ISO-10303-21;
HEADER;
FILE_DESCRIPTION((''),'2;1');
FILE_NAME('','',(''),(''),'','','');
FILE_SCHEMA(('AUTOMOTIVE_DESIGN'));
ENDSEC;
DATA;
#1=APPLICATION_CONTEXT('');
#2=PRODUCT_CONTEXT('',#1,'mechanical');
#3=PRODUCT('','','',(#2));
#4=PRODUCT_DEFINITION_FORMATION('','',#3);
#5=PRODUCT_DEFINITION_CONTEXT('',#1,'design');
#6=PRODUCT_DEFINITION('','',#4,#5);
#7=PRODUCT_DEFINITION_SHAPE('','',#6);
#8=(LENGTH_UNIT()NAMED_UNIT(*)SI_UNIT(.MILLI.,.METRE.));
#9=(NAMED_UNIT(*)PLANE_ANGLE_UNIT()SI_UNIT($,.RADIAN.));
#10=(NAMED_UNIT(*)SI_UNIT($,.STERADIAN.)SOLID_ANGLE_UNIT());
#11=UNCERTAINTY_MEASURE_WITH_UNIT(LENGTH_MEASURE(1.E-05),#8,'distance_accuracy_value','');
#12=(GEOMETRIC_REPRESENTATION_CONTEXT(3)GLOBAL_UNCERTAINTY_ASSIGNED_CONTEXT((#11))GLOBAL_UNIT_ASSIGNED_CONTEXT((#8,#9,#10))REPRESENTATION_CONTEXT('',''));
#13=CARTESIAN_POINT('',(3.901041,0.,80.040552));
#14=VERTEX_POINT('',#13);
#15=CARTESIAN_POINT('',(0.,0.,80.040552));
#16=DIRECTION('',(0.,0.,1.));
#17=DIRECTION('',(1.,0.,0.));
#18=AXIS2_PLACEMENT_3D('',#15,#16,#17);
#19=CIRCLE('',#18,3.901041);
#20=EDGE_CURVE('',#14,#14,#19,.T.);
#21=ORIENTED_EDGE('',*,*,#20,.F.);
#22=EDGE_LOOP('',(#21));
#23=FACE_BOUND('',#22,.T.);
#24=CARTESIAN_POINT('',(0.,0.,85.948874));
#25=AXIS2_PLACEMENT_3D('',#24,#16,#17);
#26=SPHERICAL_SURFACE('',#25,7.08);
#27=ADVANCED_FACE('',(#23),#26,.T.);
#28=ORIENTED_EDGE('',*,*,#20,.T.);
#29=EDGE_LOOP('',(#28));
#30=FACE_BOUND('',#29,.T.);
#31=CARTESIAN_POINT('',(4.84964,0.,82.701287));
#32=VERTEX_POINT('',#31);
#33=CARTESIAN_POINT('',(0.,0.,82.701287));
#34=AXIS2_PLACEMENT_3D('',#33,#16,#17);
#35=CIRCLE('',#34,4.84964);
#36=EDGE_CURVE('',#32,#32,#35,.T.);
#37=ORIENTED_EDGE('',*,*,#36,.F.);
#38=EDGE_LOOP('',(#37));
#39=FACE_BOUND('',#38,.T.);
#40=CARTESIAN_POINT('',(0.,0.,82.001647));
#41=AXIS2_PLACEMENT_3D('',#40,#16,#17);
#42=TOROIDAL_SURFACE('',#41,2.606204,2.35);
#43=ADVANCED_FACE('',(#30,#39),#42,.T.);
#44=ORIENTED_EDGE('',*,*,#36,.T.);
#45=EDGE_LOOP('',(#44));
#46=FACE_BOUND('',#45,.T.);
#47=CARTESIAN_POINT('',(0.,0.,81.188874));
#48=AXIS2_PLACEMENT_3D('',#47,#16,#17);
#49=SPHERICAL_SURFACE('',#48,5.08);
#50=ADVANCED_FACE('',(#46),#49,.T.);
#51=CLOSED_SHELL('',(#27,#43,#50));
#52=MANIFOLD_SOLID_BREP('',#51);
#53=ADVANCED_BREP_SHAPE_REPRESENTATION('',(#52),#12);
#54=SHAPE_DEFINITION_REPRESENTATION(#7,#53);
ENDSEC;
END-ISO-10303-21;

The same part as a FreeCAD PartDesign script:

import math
import FreeCAD as App
import Part
import Sketcher
from FreeCAD import Vector
Q = App.Units.Quantity

doc = App.newDocument("Part")
params = doc.addObject("Spreadsheet::Sheet", "Params")
for row, (alias, value) in enumerate([
    ("sketch1_radius", "5.08 mm"),
    ("sketch1_radius2", "2.35 mm"),
    ("sketch1_radius3", "7.08 mm"),
    ("sketch1_height", "7.4 mm"),
    ("revolution_angle", "360 deg"),
], start=1):
    params.set(f"A{row}", alias)
    params.set(f"B{row}", "=" + value)
    params.setAlias(f"B{row}", alias)

body = doc.addObject("PartDesign::Body", "Body")

sketch1 = doc.addObject("Sketcher::SketchObject", "Sketch")
body.addObject(sketch1)
sketch1.AttachmentSupport = (doc.XZ_Plane, [""])
sketch1.MapMode = "FlatFace"
sketch1.addGeometry(Part.LineSegment(Vector(0, 78.9, 0), Vector(0, 86.3, 0)), False)
sketch1.addGeometry(Part.ArcOfCircle(Part.Circle(Vector(0, 81.2, 0), Vector(0, 0, 1), 5.1), math.radians(17), math.radians(90)), False)
sketch1.addGeometry(Part.ArcOfCircle(Part.Circle(Vector(2.6, 82, 0), Vector(0, 0, 1), 2.4), math.radians(-57), math.radians(17)), False)
sketch1.addGeometry(Part.ArcOfCircle(Part.Circle(Vector(0, 85.9, 0), Vector(0, 0, 1), 7.1), math.radians(-90), math.radians(-57)), False)
sketch1.addConstraint(Sketcher.Constraint("Coincident", 0, 2, 1, 2))
sketch1.addConstraint(Sketcher.Constraint("Tangent", 1, 1, 2, 2))
sketch1.addConstraint(Sketcher.Constraint("Tangent", 2, 1, 3, 2))
sketch1.addConstraint(Sketcher.Constraint("Coincident", 3, 1, 0, 1))
sketch1.addConstraint(Sketcher.Constraint("Vertical", 0))
sketch1.addConstraint(Sketcher.Constraint("PointOnObject", 1, 3, -2))
sketch1.addConstraint(Sketcher.Constraint("PointOnObject", 3, 3, -2))
sketch1.addConstraint(Sketcher.Constraint("PointOnObject", 0, 2, -2))
sketch1.addConstraint(Sketcher.Constraint("Radius", 1, Q("5.08 mm")))
sketch1.addConstraint(Sketcher.Constraint("Radius", 2, Q("2.35 mm")))
sketch1.addConstraint(Sketcher.Constraint("Radius", 3, Q("7.08 mm")))
sketch1.addConstraint(Sketcher.Constraint("DistanceY", 0, 1, 0, 2, Q("7.4 mm")))
sketch1.addConstraint(Sketcher.Constraint("DistanceY", -1, 1, 2, 1, Q("80.040552 mm")))
sketch1.setExpression("Constraints[8]", "Params.sketch1_radius")
sketch1.setExpression("Constraints[9]", "Params.sketch1_radius2")
sketch1.setExpression("Constraints[10]", "Params.sketch1_radius3")
sketch1.setExpression("Constraints[11]", "Params.sketch1_height")
revolution = doc.addObject("PartDesign::Revolution", "Revolution")
body.addObject(revolution)
revolution.Profile = sketch1
revolution.ReferenceAxis = (sketch1, ["V_Axis"])
revolution.setExpression("Angle", "Params.revolution_angle")

doc.recompute()
